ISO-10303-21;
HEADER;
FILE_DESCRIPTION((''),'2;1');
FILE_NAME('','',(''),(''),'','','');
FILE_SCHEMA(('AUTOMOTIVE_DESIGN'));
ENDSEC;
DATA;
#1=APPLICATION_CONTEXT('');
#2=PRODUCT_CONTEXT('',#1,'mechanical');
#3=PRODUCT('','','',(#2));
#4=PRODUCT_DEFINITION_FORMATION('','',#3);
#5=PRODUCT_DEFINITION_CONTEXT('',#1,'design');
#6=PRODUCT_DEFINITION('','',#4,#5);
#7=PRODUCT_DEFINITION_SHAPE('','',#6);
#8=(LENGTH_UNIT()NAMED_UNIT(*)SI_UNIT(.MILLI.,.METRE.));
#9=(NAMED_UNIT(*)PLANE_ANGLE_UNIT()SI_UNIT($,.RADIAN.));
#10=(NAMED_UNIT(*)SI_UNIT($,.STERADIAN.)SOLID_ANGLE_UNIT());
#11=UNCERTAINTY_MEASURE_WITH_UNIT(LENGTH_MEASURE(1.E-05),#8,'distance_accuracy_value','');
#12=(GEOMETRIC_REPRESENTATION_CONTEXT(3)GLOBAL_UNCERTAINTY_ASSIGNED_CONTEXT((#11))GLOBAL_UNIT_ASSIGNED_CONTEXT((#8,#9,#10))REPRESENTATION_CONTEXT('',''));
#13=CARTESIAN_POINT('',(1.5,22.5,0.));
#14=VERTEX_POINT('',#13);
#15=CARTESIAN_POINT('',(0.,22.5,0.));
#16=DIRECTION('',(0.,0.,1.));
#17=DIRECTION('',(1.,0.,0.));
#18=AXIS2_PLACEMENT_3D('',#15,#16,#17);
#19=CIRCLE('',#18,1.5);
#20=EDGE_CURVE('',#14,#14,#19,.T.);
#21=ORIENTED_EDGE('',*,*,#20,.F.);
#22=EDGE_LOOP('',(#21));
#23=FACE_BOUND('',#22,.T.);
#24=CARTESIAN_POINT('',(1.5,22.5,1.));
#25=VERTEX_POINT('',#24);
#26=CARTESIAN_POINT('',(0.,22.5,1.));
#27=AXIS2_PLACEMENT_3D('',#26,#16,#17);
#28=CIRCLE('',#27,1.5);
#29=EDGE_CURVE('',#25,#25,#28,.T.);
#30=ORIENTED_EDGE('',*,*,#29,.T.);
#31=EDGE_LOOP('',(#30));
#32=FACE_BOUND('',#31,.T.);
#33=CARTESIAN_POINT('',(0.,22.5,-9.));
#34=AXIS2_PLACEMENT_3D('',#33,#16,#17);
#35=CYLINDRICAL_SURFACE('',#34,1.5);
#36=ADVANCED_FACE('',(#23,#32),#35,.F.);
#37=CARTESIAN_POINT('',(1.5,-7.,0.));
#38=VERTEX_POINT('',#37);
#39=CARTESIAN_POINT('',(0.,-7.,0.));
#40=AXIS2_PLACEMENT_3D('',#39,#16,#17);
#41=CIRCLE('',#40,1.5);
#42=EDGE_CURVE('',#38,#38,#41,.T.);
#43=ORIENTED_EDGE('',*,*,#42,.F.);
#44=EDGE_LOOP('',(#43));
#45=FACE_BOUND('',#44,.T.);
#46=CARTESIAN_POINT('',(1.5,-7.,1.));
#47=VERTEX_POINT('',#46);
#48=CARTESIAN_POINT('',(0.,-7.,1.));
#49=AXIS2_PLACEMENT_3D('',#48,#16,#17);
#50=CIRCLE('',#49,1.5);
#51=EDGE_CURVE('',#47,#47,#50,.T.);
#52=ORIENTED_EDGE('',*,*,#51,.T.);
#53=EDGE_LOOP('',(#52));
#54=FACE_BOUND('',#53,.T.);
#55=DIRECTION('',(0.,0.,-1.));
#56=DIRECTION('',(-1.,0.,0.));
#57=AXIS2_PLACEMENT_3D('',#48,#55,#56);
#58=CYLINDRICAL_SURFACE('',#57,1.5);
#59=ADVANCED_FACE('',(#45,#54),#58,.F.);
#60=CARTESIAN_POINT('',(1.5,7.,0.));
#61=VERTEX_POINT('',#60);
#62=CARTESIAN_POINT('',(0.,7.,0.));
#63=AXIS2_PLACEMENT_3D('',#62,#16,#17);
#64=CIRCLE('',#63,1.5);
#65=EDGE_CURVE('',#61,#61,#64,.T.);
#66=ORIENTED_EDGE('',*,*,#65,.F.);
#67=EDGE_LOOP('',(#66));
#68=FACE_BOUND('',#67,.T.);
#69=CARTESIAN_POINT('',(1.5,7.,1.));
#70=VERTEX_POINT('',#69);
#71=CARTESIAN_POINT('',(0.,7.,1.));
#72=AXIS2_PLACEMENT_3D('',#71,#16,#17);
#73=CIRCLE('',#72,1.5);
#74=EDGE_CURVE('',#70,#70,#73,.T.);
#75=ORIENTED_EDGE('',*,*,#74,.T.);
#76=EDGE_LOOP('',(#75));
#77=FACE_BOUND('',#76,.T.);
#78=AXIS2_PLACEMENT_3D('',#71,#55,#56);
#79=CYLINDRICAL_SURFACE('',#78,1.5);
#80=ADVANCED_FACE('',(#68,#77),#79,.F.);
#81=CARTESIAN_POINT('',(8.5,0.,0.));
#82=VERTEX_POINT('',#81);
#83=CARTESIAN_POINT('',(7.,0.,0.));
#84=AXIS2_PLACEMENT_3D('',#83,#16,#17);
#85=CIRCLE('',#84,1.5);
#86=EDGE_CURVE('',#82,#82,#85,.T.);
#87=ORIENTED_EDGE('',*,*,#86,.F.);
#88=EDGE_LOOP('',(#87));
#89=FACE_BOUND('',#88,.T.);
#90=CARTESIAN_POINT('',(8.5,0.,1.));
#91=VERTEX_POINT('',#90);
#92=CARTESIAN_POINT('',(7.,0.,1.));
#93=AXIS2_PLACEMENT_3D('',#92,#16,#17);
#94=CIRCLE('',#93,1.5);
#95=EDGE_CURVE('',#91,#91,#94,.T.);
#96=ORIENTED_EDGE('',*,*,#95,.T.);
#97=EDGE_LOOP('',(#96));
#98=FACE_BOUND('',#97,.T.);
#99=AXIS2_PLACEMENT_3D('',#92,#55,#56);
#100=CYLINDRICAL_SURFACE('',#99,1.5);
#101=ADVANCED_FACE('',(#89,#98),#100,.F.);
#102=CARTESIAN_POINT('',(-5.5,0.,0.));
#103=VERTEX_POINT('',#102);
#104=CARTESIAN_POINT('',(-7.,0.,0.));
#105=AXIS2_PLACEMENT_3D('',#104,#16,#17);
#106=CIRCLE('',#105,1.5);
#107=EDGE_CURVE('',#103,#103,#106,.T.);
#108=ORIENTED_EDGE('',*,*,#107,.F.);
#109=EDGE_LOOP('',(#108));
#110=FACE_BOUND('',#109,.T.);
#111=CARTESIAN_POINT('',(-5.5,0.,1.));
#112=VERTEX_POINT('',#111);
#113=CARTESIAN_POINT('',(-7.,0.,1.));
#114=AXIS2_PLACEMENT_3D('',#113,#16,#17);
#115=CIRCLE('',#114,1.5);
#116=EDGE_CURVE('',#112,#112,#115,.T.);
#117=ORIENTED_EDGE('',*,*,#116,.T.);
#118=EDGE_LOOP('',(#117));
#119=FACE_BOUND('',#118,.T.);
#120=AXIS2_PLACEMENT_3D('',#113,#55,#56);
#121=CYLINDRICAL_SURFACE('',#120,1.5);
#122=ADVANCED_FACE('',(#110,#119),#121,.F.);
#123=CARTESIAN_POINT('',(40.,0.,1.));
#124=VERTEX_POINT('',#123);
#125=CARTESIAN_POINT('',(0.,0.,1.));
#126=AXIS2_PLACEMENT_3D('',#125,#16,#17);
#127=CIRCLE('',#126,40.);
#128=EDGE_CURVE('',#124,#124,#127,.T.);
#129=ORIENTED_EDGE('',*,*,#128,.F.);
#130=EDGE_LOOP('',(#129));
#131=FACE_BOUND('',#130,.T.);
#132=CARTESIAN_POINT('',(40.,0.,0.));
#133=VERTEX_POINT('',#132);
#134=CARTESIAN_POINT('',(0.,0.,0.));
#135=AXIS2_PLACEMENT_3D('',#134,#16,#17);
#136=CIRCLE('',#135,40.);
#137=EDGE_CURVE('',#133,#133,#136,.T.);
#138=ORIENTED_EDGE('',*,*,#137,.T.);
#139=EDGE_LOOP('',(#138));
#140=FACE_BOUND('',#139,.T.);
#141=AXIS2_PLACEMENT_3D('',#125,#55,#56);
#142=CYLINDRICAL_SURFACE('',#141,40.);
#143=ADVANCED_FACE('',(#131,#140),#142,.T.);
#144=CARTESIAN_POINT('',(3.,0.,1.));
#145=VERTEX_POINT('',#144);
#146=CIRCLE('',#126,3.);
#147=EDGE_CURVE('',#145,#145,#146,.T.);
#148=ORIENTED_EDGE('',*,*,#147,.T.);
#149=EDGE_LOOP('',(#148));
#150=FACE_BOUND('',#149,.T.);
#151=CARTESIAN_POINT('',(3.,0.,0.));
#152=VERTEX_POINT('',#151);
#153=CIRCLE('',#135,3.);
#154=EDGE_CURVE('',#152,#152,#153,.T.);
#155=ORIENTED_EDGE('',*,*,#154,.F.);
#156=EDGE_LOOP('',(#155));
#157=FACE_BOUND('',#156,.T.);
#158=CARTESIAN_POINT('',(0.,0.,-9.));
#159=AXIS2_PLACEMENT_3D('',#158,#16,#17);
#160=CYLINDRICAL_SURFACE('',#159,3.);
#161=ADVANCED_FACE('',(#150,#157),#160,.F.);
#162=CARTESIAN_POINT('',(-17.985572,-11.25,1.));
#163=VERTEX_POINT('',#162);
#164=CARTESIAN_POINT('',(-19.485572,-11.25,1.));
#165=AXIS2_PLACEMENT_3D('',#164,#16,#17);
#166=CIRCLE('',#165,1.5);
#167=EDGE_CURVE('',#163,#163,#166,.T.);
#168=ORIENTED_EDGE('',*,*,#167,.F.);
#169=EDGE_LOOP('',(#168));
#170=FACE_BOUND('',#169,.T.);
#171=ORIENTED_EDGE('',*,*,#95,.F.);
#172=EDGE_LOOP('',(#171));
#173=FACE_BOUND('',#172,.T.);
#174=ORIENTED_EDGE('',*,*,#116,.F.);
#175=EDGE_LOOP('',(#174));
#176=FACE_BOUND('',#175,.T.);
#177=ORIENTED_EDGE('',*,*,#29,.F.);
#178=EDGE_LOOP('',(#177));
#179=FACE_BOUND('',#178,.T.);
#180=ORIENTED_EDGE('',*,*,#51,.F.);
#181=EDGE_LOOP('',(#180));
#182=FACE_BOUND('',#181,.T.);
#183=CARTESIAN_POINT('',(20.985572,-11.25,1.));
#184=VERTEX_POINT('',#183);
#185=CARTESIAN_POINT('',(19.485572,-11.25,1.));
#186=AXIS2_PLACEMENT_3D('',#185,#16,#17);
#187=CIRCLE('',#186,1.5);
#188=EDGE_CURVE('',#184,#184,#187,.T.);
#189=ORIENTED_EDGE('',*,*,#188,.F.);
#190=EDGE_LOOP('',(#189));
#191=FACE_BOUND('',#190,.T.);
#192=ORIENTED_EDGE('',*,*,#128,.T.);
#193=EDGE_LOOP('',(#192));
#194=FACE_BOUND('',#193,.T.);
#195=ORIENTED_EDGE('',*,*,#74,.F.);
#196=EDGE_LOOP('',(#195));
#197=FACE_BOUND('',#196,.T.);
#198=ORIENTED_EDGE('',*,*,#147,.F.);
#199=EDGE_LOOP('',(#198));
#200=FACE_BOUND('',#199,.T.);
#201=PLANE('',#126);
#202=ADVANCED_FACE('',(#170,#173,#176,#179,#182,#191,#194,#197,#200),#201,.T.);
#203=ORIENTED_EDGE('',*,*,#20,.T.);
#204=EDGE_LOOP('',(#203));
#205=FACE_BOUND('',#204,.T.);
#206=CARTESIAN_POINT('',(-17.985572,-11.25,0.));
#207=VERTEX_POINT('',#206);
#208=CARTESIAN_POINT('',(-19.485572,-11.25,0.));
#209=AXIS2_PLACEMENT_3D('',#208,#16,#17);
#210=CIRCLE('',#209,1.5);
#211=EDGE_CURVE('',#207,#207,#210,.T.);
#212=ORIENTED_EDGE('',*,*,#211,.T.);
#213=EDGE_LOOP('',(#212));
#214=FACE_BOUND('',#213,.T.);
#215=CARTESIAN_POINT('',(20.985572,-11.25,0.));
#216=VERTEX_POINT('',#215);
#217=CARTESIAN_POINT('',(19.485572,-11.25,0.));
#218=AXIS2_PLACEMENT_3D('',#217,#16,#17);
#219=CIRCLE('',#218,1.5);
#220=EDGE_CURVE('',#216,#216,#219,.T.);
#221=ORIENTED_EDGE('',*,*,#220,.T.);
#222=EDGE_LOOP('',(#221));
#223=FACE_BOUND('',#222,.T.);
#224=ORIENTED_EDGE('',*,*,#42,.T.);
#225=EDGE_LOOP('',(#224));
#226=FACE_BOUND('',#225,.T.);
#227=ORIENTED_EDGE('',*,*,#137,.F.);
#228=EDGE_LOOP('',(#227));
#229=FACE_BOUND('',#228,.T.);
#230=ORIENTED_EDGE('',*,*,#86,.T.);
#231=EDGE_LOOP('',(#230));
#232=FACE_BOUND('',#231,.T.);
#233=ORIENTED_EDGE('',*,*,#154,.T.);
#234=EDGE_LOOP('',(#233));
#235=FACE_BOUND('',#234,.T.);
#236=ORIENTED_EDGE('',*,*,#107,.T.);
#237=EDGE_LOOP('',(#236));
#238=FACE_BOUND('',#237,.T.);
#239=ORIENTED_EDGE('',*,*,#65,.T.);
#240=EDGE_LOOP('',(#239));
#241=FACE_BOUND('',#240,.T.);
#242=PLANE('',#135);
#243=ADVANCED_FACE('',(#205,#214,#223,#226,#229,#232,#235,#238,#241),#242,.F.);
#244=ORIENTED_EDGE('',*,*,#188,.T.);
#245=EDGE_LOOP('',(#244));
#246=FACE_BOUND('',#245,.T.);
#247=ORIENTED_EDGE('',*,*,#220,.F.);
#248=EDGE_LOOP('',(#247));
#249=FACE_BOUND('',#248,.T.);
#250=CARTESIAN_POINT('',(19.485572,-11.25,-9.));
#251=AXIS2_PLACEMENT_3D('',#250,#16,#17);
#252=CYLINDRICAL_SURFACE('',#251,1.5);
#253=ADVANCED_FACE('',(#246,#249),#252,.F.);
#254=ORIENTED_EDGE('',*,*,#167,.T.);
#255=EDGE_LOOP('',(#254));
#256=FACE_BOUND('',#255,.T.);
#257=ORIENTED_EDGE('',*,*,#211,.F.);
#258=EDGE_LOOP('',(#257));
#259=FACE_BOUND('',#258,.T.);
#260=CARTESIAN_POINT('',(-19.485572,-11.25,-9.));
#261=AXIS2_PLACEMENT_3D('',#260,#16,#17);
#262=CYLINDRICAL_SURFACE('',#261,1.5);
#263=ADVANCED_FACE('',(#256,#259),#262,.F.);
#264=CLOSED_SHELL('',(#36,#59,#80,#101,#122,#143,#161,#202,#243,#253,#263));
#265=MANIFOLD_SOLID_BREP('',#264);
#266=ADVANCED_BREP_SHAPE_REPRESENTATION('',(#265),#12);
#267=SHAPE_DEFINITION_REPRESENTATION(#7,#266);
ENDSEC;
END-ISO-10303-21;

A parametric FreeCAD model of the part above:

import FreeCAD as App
import Part
import Sketcher
from FreeCAD import Vector

doc = App.newDocument("Part")
params = doc.addObject("Spreadsheet::Sheet", "Params")
for row, (alias, value) in enumerate([
    ("sketch1_diameter", "80 mm"),
    ("sketch1_diameter2", "3 mm"),
    ("sketch1_diameter3", "5 mm"),
    ("pad1_length", "1 mm"),
    ("sketch2_diameter", "3 mm"),
    ("pocket1_length", "10 mm"),
    ("sketch3_diameter", "6 mm"),
    ("pocket2_length", "10 mm"),
], start=1):
    params.set(f"A{row}", alias)
    params.set(f"B{row}", "=" + value)
    params.setAlias(f"B{row}", alias)

body = doc.addObject("PartDesign::Body", "Body")

# Sketch on XY plane
sketch1 = body.newObject("Sketcher::SketchObject", "Sketch")
sketch1.AttachmentSupport = (doc.getObject("XY_Plane"), [""])
sketch1.MapMode = "FlatFace"
sketch1.addGeometry([
    Part.Circle(Vector(0, 0, 0), Vector(0, 0, 1), 40),  # 0
    Part.Circle(Vector(0, -7, 0), Vector(0, 0, 1), 1.5),  # 1
    Part.Circle(Vector(-7, 0, 0), Vector(0, 0, 1), 1.5),  # 2
    Part.Circle(Vector(0, 0, 0), Vector(0, 0, 1), 2.5),  # 3
    Part.Circle(Vector(7, 0, 0), Vector(0, 0, 1), 1.5),  # 4
    Part.Circle(Vector(0, 7, 0), Vector(0, 0, 1), 1.5),  # 5
], False)
sketch1.addConstraint([
    Sketcher.Constraint("Coincident", 0, 3, -1, 1),
    Sketcher.Constraint("Coincident", 3, 3, -1, 1),
    Sketcher.Constraint("Equal", 1, 2),
    Sketcher.Constraint("Equal", 2, 4),
    Sketcher.Constraint("Equal", 4, 5),
    Sketcher.Constraint("Symmetric", 2, 3, 4, 3, -1, 1),
    Sketcher.Constraint("Symmetric", 1, 3, 5, 3, -1, 1),
    Sketcher.Constraint("PointOnObject", 1, 3, -2),
    Sketcher.Constraint("PointOnObject", 2, 3, -1),
    Sketcher.Constraint("Diameter", 0, 80.0),
    Sketcher.Constraint("Diameter", 1, 3.0),
    Sketcher.Constraint("Diameter", 3, 5.0),
    Sketcher.Constraint("DistanceY", 1, 3, -1, 1, 7.0),
    Sketcher.Constraint("DistanceX", 2, 3, -1, 1, 7.0),
])
sketch1.setExpression("Constraints[9]", "Params.sketch1_diameter")
sketch1.setExpression("Constraints[10]", "Params.sketch1_diameter2")
sketch1.setExpression("Constraints[11]", "Params.sketch1_diameter3")
pad1 = body.newObject("PartDesign::Pad", "Pad")
pad1.Profile = sketch1
pad1.setExpression("Length", "Params.pad1_length")

# Sketch on XY plane
sketch2 = body.newObject("Sketcher::SketchObject", "Sketch001")
sketch2.AttachmentSupport = (doc.getObject("XY_Plane"), [""])
sketch2.MapMode = "FlatFace"
sketch2.AttachmentOffset = App.Placement(Vector(0, 0, 1), App.Rotation())
sketch2.addGeometry([
    Part.Circle(Vector(0, 22.5, 0), Vector(0, 0, 1), 1.5),
    Part.Circle(Vector(19.5, -11.2, 0), Vector(0, 0, 1), 1.5),
    Part.Circle(Vector(-19.5, -11.2, 0), Vector(0, 0, 1), 1.5),
], False)
sketch2.addConstraint([
    Sketcher.Constraint("Equal", 0, 1),
    Sketcher.Constraint("Equal", 1, 2),
    Sketcher.Constraint("Symmetric", 1, 3, 2, 3, -2),
    Sketcher.Constraint("PointOnObject", 0, 3, -2),
    Sketcher.Constraint("Diameter", 0, 3.0),
    Sketcher.Constraint("DistanceY", -1, 1, 0, 3, 22.5),
    Sketcher.Constraint("DistanceY", 1, 3, -1, 1, 11.25),
    Sketcher.Constraint("DistanceX", -1, 1, 1, 3, 19.485572),
])
sketch2.setExpression("Constraints[4]", "Params.sketch2_diameter")
pocket1 = body.newObject("PartDesign::Pocket", "Pocket")
pocket1.Profile = sketch2
pocket1.setExpression("Length", "Params.pocket1_length")

# Sketch on XY plane
sketch3 = body.newObject("Sketcher::SketchObject", "Sketch002")
sketch3.AttachmentSupport = (doc.getObject("XY_Plane"), [""])
sketch3.MapMode = "FlatFace"
sketch3.AttachmentOffset = App.Placement(Vector(0, 0, 1), App.Rotation())
sketch3.addGeometry(Part.Circle(Vector(0, 0, 0), Vector(0, 0, 1), 3), False)
sketch3.addConstraint([
    Sketcher.Constraint("Coincident", 0, 3, -1, 1),
    Sketcher.Constraint("Diameter", 0, 6.0),
])
sketch3.setExpression("Constraints[1]", "Params.sketch3_diameter")
pocket2 = body.newObject("PartDesign::Pocket", "Pocket001")
pocket2.Profile = sketch3
pocket2.setExpression("Length", "Params.pocket2_length")

doc.recompute()
